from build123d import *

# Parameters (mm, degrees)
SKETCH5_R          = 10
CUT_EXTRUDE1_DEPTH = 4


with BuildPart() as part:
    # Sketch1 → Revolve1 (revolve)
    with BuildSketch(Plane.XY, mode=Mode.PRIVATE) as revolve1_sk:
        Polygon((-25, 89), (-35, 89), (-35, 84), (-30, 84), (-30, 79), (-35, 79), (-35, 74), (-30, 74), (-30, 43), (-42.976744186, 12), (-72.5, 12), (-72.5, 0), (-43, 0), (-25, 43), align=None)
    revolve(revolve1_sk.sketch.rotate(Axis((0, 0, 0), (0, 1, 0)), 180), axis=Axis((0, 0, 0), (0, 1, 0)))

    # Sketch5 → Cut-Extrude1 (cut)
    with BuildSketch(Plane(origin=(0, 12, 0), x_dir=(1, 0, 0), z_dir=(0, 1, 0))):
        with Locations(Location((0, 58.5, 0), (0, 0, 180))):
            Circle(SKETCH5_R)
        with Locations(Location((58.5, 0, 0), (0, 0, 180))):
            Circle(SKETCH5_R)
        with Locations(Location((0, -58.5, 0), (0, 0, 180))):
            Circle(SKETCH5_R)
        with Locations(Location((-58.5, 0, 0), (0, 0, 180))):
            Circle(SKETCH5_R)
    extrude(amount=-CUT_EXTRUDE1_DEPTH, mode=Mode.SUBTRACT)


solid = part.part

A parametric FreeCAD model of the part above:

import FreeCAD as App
import Part
import Sketcher

V = App.Vector

doc = App.newDocument("Part")
params = doc.addObject("Spreadsheet::Sheet", "Params")
for row, (alias, value) in enumerate([
    ("sketch1_width", "10 mm"),
    ("sketch1_width2", "5 mm"),
    ("sketch1_height", "31 mm"),
    ("sketch1_height2", "12 mm"),
    ("sketch1_width3", "29.5 mm"),
    ("revolution_angle", "360 deg"),
    ("sketch2_diameter", "20 mm"),
    ("pocket1_length", "4 mm"),
], start=1):
    params.set(f"A{row}", alias)
    params.set(f"B{row}", "=" + value)
    params.setAlias(f"B{row}", alias)

body = doc.addObject("PartDesign::Body", "Body")

# Sketch on XY plane
sketch1 = doc.addObject("Sketcher::SketchObject", "Sketch")
body.addObject(sketch1)
sketch1.AttachmentSupport = (doc.XY_Plane, [""])
sketch1.MapMode = "FlatFace"
sketch1.addGeometry([
    Part.LineSegment(V(-25, 89, 0), V(-35, 89, 0)),  # 0
    Part.LineSegment(V(-35, 89, 0), V(-35, 84, 0)),  # 1
    Part.LineSegment(V(-35, 84, 0), V(-30, 84, 0)),  # 2
    Part.LineSegment(V(-30, 84, 0), V(-30, 79, 0)),  # 3
    Part.LineSegment(V(-30, 79, 0), V(-35, 79, 0)),  # 4
    Part.LineSegment(V(-35, 79, 0), V(-35, 74, 0)),  # 5
    Part.LineSegment(V(-35, 74, 0), V(-30, 74, 0)),  # 6
    Part.LineSegment(V(-30, 74, 0), V(-30, 43, 0)),  # 7
    Part.LineSegment(V(-30, 43, 0), V(-43, 12, 0)),  # 8
    Part.LineSegment(V(-43, 12, 0), V(-72, 12, 0)),  # 9
    Part.LineSegment(V(-72, 12, 0), V(-72, 0, 0)),  # 10
    Part.LineSegment(V(-72, 0, 0), V(-43, 0, 0)),  # 11
    Part.LineSegment(V(-43, 0, 0), V(-25, 43, 0)),  # 12
    Part.LineSegment(V(-25, 43, 0), V(-25, 89, 0)),  # 13
], False)
sketch1.addConstraint([
    Sketcher.Constraint("Coincident", 0, 2, 1, 1),
    Sketcher.Constraint("Coincident", 1, 2, 2, 1),
    Sketcher.Constraint("Coincident", 2, 2, 3, 1),
    Sketcher.Constraint("Coincident", 3, 2, 4, 1),
    Sketcher.Constraint("Coincident", 4, 2, 5, 1),
    Sketcher.Constraint("Coincident", 5, 2, 6, 1),
    Sketcher.Constraint("Coincident", 6, 2, 7, 1),
    Sketcher.Constraint("Coincident", 7, 2, 8, 1),
    Sketcher.Constraint("Coincident", 8, 2, 9, 1),
    Sketcher.Constraint("Coincident", 9, 2, 10, 1),
    Sketcher.Constraint("Coincident", 10, 2, 11, 1),
    Sketcher.Constraint("Coincident", 11, 2, 12, 1),
    Sketcher.Constraint("Coincident", 12, 2, 13, 1),
    Sketcher.Constraint("Coincident", 13, 2, 0, 1),
    Sketcher.Constraint("Horizontal", 0),
    Sketcher.Constraint("Vertical", 1),
    Sketcher.Constraint("Horizontal", 2),
    Sketcher.Constraint("Vertical", 3),
    Sketcher.Constraint("Horizontal", 4),
    Sketcher.Constraint("Vertical", 5),
    Sketcher.Constraint("Horizontal", 6),
    Sketcher.Constraint("Vertical", 7),
    Sketcher.Constraint("Horizontal", 9),
    Sketcher.Constraint("Vertical", 10),
    Sketcher.Constraint("Horizontal", 11),
    Sketcher.Constraint("Vertical", 13),
    Sketcher.Constraint("PointOnObject", 10, 2, -1),
    Sketcher.Constraint("Parallel", 8, 12),
    Sketcher.Constraint("Horizontal", 7, 2, 12, 2),
    Sketcher.Constraint("Vertical", 1, 2, 4, 2),
    Sketcher.Constraint("Vertical", 3, 2, 6, 2),
    Sketcher.Constraint("Equal", 6, 1),
    Sketcher.Constraint("Equal", 1, 3),
    Sketcher.Constraint("Equal", 3, 5),
    Sketcher.Constraint("DistanceX", 0, 2, 0, 1, 10.0),
    Sketcher.Constraint("DistanceX", 2, 1, 2, 2, 5.0),
    Sketcher.Constraint("DistanceY", 7, 2, 7, 1, 31.0),
    Sketcher.Constraint("DistanceY", 10, 2, 10, 1, 12.0),
    Sketcher.Constraint("DistanceX", 11, 1, 11, 2, 29.5),
    Sketcher.Constraint("DistanceX", 0, 2, -1, 1, 35.0),
    Sketcher.Constraint("DistanceY", -1, 1, 0, 2, 89.0),
    Sketcher.Constraint("DistanceX", 11, 2, -1, 1, 43.0),
])
sketch1.setExpression("Constraints[34]", "Params.sketch1_width")
sketch1.setExpression("Constraints[35]", "Params.sketch1_width2")
sketch1.setExpression("Constraints[36]", "Params.sketch1_height")
sketch1.setExpression("Constraints[37]", "Params.sketch1_height2")
sketch1.setExpression("Constraints[38]", "Params.sketch1_width3")
revolution = doc.addObject("PartDesign::Revolution", "Revolution")
body.addObject(revolution)
revolution.Profile = sketch1
revolution.ReferenceAxis = (sketch1, ["V_Axis"])
revolution.setExpression("Angle", "Params.revolution_angle")

# Sketch on XZ plane
sketch2 = doc.addObject("Sketcher::SketchObject", "Sketch001")
body.addObject(sketch2)
sketch2.AttachmentSupport = (doc.XZ_Plane, [""])
sketch2.MapMode = "FlatFace"
sketch2.AttachmentOffset = App.Placement(V(0, 0, -12), App.Rotation())
sketch2.addGeometry([
    Part.Circle(V(0, -58, 0), V(0, 0, 1), 10),
    Part.Circle(V(58, 0, 0), V(0, 0, 1), 10),
    Part.Circle(V(0, 58, 0), V(0, 0, 1), 10),
    Part.Circle(V(-58, 0, 0), V(0, 0, 1), 10),
], False)
sketch2.addConstraint([
    Sketcher.Constraint("Equal", 0, 1),
    Sketcher.Constraint("Equal", 1, 2),
    Sketcher.Constraint("Equal", 2, 3),
    Sketcher.Constraint("Symmetric", 0, 3, 2, 3, -1, 1),
    Sketcher.Constraint("Symmetric", 1, 3, 3, 3, -1, 1),
    Sketcher.Constraint("PointOnObject", 0, 3, -2),
    Sketcher.Constraint("PointOnObject", 1, 3, -1),
    Sketcher.Constraint("Diameter", 0, 20.0),
    Sketcher.Constraint("DistanceY", 0, 3, 2, 3, 117.0),
    Sketcher.Constraint("DistanceX", 3, 3, 1, 3, 117.0),
])
sketch2.setExpression("Constraints[7]", "Params.sketch2_diameter")
pocket1 = doc.addObject("PartDesign::Pocket", "Pocket")
body.addObject(pocket1)
pocket1.Profile = sketch2
pocket1.setExpression("Length", "Params.pocket1_length")
pocket1.Reversed = True

doc.recompute()
